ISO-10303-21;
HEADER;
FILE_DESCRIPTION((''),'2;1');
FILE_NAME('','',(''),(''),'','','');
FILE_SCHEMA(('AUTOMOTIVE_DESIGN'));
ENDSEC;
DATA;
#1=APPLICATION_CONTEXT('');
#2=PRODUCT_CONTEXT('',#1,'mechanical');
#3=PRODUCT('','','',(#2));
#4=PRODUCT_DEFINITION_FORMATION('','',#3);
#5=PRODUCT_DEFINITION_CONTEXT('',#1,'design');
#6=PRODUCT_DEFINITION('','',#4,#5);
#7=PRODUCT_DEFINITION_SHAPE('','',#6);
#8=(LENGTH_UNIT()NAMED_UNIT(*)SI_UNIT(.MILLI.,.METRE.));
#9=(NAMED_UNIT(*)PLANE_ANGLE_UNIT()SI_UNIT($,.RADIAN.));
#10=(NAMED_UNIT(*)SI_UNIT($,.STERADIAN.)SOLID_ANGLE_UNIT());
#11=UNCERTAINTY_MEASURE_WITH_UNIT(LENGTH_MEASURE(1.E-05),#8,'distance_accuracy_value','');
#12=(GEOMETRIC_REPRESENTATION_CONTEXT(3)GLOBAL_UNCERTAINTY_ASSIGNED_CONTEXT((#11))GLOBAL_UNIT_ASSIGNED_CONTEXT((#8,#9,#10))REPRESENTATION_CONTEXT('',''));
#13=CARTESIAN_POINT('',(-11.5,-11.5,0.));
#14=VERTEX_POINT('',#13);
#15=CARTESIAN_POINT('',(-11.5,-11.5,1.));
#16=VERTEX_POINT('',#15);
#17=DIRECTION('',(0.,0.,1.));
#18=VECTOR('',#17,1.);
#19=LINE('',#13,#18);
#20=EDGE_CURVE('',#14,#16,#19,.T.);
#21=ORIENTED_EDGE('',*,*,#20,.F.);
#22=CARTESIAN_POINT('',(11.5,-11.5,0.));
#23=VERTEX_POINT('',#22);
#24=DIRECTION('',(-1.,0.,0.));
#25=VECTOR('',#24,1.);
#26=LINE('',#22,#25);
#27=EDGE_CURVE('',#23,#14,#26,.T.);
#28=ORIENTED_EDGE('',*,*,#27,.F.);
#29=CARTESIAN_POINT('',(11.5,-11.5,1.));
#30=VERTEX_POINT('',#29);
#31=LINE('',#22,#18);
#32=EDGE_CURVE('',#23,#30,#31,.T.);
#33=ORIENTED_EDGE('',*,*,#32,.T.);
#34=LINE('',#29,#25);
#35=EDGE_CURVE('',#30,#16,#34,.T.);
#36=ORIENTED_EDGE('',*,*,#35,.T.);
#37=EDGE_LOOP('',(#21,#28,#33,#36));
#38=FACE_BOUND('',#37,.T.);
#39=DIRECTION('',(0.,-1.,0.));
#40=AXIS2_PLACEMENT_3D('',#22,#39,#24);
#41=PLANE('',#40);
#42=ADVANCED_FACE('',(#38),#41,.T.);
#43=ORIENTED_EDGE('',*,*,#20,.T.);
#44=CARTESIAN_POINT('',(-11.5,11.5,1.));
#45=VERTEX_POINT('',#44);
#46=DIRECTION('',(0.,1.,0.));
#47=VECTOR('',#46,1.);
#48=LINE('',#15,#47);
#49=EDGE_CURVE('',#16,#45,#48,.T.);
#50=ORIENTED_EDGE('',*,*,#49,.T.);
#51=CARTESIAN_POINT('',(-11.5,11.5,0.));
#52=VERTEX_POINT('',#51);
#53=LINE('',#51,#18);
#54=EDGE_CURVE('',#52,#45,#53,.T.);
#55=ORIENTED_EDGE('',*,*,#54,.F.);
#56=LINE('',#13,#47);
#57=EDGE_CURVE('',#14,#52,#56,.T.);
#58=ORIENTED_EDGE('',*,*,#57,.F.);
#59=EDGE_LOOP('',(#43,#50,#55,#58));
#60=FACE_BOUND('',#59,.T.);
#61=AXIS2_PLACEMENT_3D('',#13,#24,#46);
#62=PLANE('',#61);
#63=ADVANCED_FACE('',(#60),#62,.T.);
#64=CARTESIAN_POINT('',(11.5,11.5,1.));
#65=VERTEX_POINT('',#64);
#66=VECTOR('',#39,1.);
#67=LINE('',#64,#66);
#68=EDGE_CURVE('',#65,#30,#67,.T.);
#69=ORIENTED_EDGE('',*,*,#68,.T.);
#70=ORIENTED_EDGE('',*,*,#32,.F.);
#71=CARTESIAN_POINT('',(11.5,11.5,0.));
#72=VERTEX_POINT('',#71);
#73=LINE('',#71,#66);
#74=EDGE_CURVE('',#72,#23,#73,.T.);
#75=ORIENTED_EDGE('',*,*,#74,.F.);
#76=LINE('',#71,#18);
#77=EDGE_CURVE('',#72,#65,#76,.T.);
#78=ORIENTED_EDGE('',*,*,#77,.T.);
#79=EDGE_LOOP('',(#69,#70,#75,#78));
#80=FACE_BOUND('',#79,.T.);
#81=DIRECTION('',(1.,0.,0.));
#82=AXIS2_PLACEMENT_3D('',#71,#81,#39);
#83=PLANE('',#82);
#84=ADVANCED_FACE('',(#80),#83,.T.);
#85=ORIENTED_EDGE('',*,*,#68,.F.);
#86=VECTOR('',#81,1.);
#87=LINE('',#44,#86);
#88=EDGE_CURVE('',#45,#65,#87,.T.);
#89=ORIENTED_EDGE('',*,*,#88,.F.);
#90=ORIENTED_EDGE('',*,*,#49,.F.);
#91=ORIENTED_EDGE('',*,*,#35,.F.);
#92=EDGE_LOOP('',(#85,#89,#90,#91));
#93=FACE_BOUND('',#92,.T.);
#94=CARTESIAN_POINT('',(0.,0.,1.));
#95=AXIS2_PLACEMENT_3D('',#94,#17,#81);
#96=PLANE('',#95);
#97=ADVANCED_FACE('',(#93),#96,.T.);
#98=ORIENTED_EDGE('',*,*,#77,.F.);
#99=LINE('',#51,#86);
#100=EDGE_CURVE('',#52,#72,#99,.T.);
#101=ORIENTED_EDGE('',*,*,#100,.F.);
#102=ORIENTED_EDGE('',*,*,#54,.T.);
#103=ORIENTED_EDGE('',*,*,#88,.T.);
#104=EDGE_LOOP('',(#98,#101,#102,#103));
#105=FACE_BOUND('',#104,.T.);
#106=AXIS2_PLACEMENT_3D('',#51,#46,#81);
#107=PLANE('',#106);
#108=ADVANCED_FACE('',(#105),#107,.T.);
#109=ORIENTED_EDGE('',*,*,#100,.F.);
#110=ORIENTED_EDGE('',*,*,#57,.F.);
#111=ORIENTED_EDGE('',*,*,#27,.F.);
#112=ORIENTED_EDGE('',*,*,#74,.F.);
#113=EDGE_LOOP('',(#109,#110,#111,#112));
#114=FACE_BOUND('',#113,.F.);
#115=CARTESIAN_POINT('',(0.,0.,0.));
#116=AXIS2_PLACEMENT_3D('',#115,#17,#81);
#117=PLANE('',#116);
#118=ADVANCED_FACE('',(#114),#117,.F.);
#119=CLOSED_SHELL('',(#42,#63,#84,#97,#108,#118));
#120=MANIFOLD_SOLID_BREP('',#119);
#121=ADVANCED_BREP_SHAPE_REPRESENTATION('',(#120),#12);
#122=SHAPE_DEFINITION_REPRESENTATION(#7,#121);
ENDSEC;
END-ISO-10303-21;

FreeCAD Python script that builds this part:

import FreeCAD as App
import Part
import Sketcher

doc = App.newDocument("Part")
body = doc.addObject("PartDesign::Body", "Body")

# Sketch on XY plane
sketch1 = doc.addObject("Sketcher::SketchObject", "Sketch")
body.addObject(sketch1)
sketch1.AttachmentSupport = (doc.XY_Plane, [""])
sketch1.MapMode = "FlatFace"
sketch1.addGeometry(Part.LineSegment(App.Vector(-12, 12, 0), App.Vector(-12, -12, 0)), False)
sketch1.addGeometry(Part.LineSegment(App.Vector(-12, -12, 0), App.Vector(12, -12, 0)), False)
sketch1.addGeometry(Part.LineSegment(App.Vector(12, -12, 0), App.Vector(12, 12, 0)), False)
sketch1.addGeometry(Part.LineSegment(App.Vector(12, 12, 0), App.Vector(-12, 12, 0)), False)
sketch1.addConstraint(Sketcher.Constraint("Coincident", 0, 2, 1, 1))
sketch1.addConstraint(Sketcher.Constraint("Coincident", 1, 2, 2, 1))
sketch1.addConstraint(Sketcher.Constraint("Coincident", 2, 2, 3, 1))
sketch1.addConstraint(Sketcher.Constraint("Coincident", 3, 2, 0, 1))
sketch1.addConstraint(Sketcher.Constraint("Vertical", 0))
sketch1.addConstraint(Sketcher.Constraint("Horizontal", 1))
sketch1.addConstraint(Sketcher.Constraint("Vertical", 2))
sketch1.addConstraint(Sketcher.Constraint("Horizontal", 3))
sketch1.addConstraint(Sketcher.Constraint("Symmetric", 0, 2, 2, 2, -1, 1))
sketch1.addConstraint(Sketcher.Constraint("Equal", 3, 0))
sketch1.addConstraint(Sketcher.Constraint("DistanceX", 1, 1, 1, 2, 23.0))
pad1 = doc.addObject("PartDesign::Pad", "Pad")
body.addObject(pad1)
pad1.Profile = sketch1
pad1.Length = 1

doc.recompute()
